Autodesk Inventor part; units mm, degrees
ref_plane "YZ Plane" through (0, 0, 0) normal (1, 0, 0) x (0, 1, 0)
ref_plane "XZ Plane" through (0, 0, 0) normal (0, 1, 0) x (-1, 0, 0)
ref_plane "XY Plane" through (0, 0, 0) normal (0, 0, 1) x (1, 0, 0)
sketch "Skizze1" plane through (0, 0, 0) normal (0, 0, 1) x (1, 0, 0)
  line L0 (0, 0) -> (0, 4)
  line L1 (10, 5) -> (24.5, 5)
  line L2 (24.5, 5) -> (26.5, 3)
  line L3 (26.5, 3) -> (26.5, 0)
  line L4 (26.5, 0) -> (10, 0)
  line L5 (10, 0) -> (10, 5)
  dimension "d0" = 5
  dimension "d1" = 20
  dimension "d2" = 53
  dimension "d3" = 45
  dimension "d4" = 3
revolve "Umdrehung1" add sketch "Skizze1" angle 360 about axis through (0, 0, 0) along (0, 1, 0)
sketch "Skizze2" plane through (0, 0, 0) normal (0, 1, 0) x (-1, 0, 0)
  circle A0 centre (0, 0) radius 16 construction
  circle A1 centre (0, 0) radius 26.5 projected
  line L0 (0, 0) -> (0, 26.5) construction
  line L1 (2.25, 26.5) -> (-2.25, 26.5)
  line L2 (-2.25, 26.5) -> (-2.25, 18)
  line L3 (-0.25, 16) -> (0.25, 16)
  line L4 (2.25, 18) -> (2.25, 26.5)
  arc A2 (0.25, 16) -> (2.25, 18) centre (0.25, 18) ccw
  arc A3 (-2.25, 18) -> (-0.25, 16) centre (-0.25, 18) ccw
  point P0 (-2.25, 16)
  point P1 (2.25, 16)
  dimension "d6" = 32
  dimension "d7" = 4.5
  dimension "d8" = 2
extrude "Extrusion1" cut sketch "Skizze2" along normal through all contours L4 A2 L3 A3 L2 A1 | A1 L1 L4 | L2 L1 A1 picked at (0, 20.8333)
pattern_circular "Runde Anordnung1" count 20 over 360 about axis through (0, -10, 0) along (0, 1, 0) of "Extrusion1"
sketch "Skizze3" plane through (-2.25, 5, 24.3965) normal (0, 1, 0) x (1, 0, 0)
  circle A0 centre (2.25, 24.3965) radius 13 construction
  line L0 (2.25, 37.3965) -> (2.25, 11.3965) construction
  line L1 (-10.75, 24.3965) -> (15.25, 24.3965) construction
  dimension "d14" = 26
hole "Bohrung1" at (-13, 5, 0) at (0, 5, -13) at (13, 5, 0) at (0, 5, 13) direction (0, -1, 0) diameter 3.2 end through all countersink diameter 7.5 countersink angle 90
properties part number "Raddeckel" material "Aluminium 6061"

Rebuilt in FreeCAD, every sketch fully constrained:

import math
import FreeCAD as App
import Part
import Sketcher

V = App.Vector
Q = App.Units.Quantity

doc = App.newDocument("Part")
body = doc.addObject("PartDesign::Body", "Body")

sketch1 = doc.addObject("Sketcher::SketchObject", "Sketch")
body.addObject(sketch1)
sketch1.AttachmentSupport = (doc.XY_Plane, [""])
sketch1.MapMode = "FlatFace"
sketch1.addGeometry(Part.LineSegment(V(24.5, 5, 0), V(10, 5, 0)), False)
sketch1.addGeometry(Part.LineSegment(V(10, 5, 0), V(10, 0, 0)), False)
sketch1.addGeometry(Part.LineSegment(V(10, 0, 0), V(26.5, 0, 0)), False)
sketch1.addGeometry(Part.LineSegment(V(26.5, 0, 0), V(26.5, 3, 0)), False)
sketch1.addGeometry(Part.LineSegment(V(26.5, 3, 0), V(24.5, 5, 0)), False)
sketch1.addConstraint(Sketcher.Constraint("Coincident", 0, 2, 1, 1))
sketch1.addConstraint(Sketcher.Constraint("Coincident", 1, 2, 2, 1))
sketch1.addConstraint(Sketcher.Constraint("Coincident", 2, 2, 3, 1))
sketch1.addConstraint(Sketcher.Constraint("Coincident", 3, 2, 4, 1))
sketch1.addConstraint(Sketcher.Constraint("Coincident", 4, 2, 0, 1))
sketch1.addConstraint(Sketcher.Constraint("Horizontal", 0))
sketch1.addConstraint(Sketcher.Constraint("Vertical", 1))
sketch1.addConstraint(Sketcher.Constraint("Horizontal", 2))
sketch1.addConstraint(Sketcher.Constraint("Vertical", 3))
sketch1.addConstraint(Sketcher.Constraint("PointOnObject", 1, 2, -1))
sketch1.addConstraint(Sketcher.Constraint("DistanceY", 1, 2, 1, 1, 5.0))
sketch1.addConstraint(Sketcher.Constraint("DistanceY", 3, 1, 3, 2, 3.0))
sketch1.addConstraint(Sketcher.Constraint("Angle", 4, Q("135 deg")))
sketch1.addConstraint(Sketcher.Constraint("DistanceX", 0, 2, 0, 1, 14.5))
sketch1.addConstraint(Sketcher.Constraint("DistanceX", -1, 1, 0, 2, 10.0))
revolution = doc.addObject("PartDesign::Revolution", "Revolution")
body.addObject(revolution)
revolution.Profile = sketch1
revolution.ReferenceAxis = (sketch1, ["V_Axis"])
revolution.Angle = 360

sketch2 = doc.addObject("Sketcher::SketchObject", "Sketch001")
body.addObject(sketch2)
sketch2.AttachmentSupport = (doc.XZ_Plane, [""])
sketch2.MapMode = "FlatFace"
sketch2.addGeometry(Part.LineSegment(V(-2.2, 18, 0), V(-2.2, 26.5, 0)), False)
sketch2.addGeometry(Part.LineSegment(V(-2.2, 26.5, 0), V(2.2, 26.5, 0)), False)
sketch2.addGeometry(Part.LineSegment(V(2.2, 26.5, 0), V(2.2, 18, 0)), False)
sketch2.addGeometry(Part.ArcOfCircle(Part.Circle(V(0.2, 18, 0), V(0, 0, 1), 2), math.radians(-90), math.radians(0)), False)
sketch2.addGeometry(Part.LineSegment(V(0.2, 16, 0), V(-0.2, 16, 0)), False)
sketch2.addGeometry(Part.ArcOfCircle(Part.Circle(V(-0.2, 18, 0), V(0, 0, 1), 2), math.radians(180), math.radians(270)), False)
sketch2.addConstraint(Sketcher.Constraint("Coincident", 0, 2, 1, 1))
sketch2.addConstraint(Sketcher.Constraint("Coincident", 1, 2, 2, 1))
sketch2.addConstraint(Sketcher.Constraint("Tangent", 2, 2, 3, 2))
sketch2.addConstraint(Sketcher.Constraint("Tangent", 3, 1, 4, 1))
sketch2.addConstraint(Sketcher.Constraint("Tangent", 4, 2, 5, 2))
sketch2.addConstraint(Sketcher.Constraint("Tangent", 5, 1, 0, 1))
sketch2.addConstraint(Sketcher.Constraint("Vertical", 0))
sketch2.addConstraint(Sketcher.Constraint("Horizontal", 1))
sketch2.addConstraint(Sketcher.Constraint("Vertical", 2))
sketch2.addConstraint(Sketcher.Constraint("Horizontal", 4))
sketch2.addConstraint(Sketcher.Constraint("Equal", 3, 5))
sketch2.addConstraint(Sketcher.Constraint("Radius", 3, 2.0))
sketch2.addConstraint(Sketcher.Constraint("DistanceX", 1, 1, 1, 2, 4.5))
sketch2.addConstraint(Sketcher.Constraint("DistanceY", 0, 1, 0, 2, 8.5))
sketch2.addConstraint(Sketcher.Constraint("DistanceY", -1, 1, 3, 3, 18.0))
sketch2.addConstraint(Sketcher.Constraint("DistanceX", -1, 1, 3, 3, 0.25))
pocket1 = doc.addObject("PartDesign::Pocket", "Pocket")
body.addObject(pocket1)
pocket1.Profile = sketch2
pocket1.Type = "ThroughAll"
doc.recompute()

polarpattern = doc.addObject("PartDesign::PolarPattern", "PolarPattern")
body.addObject(polarpattern)
polarpattern.Originals = [pocket1]
polarpattern.Axis = (doc.Y_Axis, [""])
polarpattern.Angle = 360
polarpattern.Occurrences = 20
body.Tip = polarpattern

sketch3 = doc.addObject("Sketcher::SketchObject", "Sketch002")
body.addObject(sketch3)
sketch3.AttachmentSupport = (doc.XZ_Plane, [""])
sketch3.MapMode = "FlatFace"
sketch3.AttachmentOffset = App.Placement(V(0, 0, -5), App.Rotation())
sketch3.addGeometry(Part.Circle(V(-13, 0, 0), V(0, 0, 1), 1.6), False)
sketch3.addGeometry(Part.Circle(V(0, -13, 0), V(0, 0, 1), 1.6), False)
sketch3.addGeometry(Part.Circle(V(13, 0, 0), V(0, 0, 1), 1.6), False)
sketch3.addGeometry(Part.Circle(V(0, 13, 0), V(0, 0, 1), 1.6), False)
sketch3.addConstraint(Sketcher.Constraint("Equal", 0, 1))
sketch3.addConstraint(Sketcher.Constraint("Equal", 1, 2))
sketch3.addConstraint(Sketcher.Constraint("Equal", 2, 3))
sketch3.addConstraint(Sketcher.Constraint("Symmetric", 0, 3, 2, 3, -1, 1))
sketch3.addConstraint(Sketcher.Constraint("Symmetric", 1, 3, 3, 3, -1, 1))
sketch3.addConstraint(Sketcher.Constraint("PointOnObject", 0, 3, -1))
sketch3.addConstraint(Sketcher.Constraint("PointOnObject", 1, 3, -2))
sketch3.addConstraint(Sketcher.Constraint("Diameter", 0, 3.2))
sketch3.addConstraint(Sketcher.Constraint("DistanceX", 0, 3, -1, 1, 13.0))
sketch3.addConstraint(Sketcher.Constraint("DistanceY", 1, 3, -1, 1, 13.0))
doc.recompute()
hole = doc.addObject("PartDesign::Hole", "Hole")
body.addObject(hole)
hole.Profile = sketch3
hole.ThreadType = "None"
hole.Diameter = 3.2
hole.DepthType = "ThroughAll"
hole.HoleCutType = "Countersink"
hole.HoleCutDiameter = 7.5
hole.HoleCutCountersinkAngle = 90
hole.Reversed = True

doc.recompute()
